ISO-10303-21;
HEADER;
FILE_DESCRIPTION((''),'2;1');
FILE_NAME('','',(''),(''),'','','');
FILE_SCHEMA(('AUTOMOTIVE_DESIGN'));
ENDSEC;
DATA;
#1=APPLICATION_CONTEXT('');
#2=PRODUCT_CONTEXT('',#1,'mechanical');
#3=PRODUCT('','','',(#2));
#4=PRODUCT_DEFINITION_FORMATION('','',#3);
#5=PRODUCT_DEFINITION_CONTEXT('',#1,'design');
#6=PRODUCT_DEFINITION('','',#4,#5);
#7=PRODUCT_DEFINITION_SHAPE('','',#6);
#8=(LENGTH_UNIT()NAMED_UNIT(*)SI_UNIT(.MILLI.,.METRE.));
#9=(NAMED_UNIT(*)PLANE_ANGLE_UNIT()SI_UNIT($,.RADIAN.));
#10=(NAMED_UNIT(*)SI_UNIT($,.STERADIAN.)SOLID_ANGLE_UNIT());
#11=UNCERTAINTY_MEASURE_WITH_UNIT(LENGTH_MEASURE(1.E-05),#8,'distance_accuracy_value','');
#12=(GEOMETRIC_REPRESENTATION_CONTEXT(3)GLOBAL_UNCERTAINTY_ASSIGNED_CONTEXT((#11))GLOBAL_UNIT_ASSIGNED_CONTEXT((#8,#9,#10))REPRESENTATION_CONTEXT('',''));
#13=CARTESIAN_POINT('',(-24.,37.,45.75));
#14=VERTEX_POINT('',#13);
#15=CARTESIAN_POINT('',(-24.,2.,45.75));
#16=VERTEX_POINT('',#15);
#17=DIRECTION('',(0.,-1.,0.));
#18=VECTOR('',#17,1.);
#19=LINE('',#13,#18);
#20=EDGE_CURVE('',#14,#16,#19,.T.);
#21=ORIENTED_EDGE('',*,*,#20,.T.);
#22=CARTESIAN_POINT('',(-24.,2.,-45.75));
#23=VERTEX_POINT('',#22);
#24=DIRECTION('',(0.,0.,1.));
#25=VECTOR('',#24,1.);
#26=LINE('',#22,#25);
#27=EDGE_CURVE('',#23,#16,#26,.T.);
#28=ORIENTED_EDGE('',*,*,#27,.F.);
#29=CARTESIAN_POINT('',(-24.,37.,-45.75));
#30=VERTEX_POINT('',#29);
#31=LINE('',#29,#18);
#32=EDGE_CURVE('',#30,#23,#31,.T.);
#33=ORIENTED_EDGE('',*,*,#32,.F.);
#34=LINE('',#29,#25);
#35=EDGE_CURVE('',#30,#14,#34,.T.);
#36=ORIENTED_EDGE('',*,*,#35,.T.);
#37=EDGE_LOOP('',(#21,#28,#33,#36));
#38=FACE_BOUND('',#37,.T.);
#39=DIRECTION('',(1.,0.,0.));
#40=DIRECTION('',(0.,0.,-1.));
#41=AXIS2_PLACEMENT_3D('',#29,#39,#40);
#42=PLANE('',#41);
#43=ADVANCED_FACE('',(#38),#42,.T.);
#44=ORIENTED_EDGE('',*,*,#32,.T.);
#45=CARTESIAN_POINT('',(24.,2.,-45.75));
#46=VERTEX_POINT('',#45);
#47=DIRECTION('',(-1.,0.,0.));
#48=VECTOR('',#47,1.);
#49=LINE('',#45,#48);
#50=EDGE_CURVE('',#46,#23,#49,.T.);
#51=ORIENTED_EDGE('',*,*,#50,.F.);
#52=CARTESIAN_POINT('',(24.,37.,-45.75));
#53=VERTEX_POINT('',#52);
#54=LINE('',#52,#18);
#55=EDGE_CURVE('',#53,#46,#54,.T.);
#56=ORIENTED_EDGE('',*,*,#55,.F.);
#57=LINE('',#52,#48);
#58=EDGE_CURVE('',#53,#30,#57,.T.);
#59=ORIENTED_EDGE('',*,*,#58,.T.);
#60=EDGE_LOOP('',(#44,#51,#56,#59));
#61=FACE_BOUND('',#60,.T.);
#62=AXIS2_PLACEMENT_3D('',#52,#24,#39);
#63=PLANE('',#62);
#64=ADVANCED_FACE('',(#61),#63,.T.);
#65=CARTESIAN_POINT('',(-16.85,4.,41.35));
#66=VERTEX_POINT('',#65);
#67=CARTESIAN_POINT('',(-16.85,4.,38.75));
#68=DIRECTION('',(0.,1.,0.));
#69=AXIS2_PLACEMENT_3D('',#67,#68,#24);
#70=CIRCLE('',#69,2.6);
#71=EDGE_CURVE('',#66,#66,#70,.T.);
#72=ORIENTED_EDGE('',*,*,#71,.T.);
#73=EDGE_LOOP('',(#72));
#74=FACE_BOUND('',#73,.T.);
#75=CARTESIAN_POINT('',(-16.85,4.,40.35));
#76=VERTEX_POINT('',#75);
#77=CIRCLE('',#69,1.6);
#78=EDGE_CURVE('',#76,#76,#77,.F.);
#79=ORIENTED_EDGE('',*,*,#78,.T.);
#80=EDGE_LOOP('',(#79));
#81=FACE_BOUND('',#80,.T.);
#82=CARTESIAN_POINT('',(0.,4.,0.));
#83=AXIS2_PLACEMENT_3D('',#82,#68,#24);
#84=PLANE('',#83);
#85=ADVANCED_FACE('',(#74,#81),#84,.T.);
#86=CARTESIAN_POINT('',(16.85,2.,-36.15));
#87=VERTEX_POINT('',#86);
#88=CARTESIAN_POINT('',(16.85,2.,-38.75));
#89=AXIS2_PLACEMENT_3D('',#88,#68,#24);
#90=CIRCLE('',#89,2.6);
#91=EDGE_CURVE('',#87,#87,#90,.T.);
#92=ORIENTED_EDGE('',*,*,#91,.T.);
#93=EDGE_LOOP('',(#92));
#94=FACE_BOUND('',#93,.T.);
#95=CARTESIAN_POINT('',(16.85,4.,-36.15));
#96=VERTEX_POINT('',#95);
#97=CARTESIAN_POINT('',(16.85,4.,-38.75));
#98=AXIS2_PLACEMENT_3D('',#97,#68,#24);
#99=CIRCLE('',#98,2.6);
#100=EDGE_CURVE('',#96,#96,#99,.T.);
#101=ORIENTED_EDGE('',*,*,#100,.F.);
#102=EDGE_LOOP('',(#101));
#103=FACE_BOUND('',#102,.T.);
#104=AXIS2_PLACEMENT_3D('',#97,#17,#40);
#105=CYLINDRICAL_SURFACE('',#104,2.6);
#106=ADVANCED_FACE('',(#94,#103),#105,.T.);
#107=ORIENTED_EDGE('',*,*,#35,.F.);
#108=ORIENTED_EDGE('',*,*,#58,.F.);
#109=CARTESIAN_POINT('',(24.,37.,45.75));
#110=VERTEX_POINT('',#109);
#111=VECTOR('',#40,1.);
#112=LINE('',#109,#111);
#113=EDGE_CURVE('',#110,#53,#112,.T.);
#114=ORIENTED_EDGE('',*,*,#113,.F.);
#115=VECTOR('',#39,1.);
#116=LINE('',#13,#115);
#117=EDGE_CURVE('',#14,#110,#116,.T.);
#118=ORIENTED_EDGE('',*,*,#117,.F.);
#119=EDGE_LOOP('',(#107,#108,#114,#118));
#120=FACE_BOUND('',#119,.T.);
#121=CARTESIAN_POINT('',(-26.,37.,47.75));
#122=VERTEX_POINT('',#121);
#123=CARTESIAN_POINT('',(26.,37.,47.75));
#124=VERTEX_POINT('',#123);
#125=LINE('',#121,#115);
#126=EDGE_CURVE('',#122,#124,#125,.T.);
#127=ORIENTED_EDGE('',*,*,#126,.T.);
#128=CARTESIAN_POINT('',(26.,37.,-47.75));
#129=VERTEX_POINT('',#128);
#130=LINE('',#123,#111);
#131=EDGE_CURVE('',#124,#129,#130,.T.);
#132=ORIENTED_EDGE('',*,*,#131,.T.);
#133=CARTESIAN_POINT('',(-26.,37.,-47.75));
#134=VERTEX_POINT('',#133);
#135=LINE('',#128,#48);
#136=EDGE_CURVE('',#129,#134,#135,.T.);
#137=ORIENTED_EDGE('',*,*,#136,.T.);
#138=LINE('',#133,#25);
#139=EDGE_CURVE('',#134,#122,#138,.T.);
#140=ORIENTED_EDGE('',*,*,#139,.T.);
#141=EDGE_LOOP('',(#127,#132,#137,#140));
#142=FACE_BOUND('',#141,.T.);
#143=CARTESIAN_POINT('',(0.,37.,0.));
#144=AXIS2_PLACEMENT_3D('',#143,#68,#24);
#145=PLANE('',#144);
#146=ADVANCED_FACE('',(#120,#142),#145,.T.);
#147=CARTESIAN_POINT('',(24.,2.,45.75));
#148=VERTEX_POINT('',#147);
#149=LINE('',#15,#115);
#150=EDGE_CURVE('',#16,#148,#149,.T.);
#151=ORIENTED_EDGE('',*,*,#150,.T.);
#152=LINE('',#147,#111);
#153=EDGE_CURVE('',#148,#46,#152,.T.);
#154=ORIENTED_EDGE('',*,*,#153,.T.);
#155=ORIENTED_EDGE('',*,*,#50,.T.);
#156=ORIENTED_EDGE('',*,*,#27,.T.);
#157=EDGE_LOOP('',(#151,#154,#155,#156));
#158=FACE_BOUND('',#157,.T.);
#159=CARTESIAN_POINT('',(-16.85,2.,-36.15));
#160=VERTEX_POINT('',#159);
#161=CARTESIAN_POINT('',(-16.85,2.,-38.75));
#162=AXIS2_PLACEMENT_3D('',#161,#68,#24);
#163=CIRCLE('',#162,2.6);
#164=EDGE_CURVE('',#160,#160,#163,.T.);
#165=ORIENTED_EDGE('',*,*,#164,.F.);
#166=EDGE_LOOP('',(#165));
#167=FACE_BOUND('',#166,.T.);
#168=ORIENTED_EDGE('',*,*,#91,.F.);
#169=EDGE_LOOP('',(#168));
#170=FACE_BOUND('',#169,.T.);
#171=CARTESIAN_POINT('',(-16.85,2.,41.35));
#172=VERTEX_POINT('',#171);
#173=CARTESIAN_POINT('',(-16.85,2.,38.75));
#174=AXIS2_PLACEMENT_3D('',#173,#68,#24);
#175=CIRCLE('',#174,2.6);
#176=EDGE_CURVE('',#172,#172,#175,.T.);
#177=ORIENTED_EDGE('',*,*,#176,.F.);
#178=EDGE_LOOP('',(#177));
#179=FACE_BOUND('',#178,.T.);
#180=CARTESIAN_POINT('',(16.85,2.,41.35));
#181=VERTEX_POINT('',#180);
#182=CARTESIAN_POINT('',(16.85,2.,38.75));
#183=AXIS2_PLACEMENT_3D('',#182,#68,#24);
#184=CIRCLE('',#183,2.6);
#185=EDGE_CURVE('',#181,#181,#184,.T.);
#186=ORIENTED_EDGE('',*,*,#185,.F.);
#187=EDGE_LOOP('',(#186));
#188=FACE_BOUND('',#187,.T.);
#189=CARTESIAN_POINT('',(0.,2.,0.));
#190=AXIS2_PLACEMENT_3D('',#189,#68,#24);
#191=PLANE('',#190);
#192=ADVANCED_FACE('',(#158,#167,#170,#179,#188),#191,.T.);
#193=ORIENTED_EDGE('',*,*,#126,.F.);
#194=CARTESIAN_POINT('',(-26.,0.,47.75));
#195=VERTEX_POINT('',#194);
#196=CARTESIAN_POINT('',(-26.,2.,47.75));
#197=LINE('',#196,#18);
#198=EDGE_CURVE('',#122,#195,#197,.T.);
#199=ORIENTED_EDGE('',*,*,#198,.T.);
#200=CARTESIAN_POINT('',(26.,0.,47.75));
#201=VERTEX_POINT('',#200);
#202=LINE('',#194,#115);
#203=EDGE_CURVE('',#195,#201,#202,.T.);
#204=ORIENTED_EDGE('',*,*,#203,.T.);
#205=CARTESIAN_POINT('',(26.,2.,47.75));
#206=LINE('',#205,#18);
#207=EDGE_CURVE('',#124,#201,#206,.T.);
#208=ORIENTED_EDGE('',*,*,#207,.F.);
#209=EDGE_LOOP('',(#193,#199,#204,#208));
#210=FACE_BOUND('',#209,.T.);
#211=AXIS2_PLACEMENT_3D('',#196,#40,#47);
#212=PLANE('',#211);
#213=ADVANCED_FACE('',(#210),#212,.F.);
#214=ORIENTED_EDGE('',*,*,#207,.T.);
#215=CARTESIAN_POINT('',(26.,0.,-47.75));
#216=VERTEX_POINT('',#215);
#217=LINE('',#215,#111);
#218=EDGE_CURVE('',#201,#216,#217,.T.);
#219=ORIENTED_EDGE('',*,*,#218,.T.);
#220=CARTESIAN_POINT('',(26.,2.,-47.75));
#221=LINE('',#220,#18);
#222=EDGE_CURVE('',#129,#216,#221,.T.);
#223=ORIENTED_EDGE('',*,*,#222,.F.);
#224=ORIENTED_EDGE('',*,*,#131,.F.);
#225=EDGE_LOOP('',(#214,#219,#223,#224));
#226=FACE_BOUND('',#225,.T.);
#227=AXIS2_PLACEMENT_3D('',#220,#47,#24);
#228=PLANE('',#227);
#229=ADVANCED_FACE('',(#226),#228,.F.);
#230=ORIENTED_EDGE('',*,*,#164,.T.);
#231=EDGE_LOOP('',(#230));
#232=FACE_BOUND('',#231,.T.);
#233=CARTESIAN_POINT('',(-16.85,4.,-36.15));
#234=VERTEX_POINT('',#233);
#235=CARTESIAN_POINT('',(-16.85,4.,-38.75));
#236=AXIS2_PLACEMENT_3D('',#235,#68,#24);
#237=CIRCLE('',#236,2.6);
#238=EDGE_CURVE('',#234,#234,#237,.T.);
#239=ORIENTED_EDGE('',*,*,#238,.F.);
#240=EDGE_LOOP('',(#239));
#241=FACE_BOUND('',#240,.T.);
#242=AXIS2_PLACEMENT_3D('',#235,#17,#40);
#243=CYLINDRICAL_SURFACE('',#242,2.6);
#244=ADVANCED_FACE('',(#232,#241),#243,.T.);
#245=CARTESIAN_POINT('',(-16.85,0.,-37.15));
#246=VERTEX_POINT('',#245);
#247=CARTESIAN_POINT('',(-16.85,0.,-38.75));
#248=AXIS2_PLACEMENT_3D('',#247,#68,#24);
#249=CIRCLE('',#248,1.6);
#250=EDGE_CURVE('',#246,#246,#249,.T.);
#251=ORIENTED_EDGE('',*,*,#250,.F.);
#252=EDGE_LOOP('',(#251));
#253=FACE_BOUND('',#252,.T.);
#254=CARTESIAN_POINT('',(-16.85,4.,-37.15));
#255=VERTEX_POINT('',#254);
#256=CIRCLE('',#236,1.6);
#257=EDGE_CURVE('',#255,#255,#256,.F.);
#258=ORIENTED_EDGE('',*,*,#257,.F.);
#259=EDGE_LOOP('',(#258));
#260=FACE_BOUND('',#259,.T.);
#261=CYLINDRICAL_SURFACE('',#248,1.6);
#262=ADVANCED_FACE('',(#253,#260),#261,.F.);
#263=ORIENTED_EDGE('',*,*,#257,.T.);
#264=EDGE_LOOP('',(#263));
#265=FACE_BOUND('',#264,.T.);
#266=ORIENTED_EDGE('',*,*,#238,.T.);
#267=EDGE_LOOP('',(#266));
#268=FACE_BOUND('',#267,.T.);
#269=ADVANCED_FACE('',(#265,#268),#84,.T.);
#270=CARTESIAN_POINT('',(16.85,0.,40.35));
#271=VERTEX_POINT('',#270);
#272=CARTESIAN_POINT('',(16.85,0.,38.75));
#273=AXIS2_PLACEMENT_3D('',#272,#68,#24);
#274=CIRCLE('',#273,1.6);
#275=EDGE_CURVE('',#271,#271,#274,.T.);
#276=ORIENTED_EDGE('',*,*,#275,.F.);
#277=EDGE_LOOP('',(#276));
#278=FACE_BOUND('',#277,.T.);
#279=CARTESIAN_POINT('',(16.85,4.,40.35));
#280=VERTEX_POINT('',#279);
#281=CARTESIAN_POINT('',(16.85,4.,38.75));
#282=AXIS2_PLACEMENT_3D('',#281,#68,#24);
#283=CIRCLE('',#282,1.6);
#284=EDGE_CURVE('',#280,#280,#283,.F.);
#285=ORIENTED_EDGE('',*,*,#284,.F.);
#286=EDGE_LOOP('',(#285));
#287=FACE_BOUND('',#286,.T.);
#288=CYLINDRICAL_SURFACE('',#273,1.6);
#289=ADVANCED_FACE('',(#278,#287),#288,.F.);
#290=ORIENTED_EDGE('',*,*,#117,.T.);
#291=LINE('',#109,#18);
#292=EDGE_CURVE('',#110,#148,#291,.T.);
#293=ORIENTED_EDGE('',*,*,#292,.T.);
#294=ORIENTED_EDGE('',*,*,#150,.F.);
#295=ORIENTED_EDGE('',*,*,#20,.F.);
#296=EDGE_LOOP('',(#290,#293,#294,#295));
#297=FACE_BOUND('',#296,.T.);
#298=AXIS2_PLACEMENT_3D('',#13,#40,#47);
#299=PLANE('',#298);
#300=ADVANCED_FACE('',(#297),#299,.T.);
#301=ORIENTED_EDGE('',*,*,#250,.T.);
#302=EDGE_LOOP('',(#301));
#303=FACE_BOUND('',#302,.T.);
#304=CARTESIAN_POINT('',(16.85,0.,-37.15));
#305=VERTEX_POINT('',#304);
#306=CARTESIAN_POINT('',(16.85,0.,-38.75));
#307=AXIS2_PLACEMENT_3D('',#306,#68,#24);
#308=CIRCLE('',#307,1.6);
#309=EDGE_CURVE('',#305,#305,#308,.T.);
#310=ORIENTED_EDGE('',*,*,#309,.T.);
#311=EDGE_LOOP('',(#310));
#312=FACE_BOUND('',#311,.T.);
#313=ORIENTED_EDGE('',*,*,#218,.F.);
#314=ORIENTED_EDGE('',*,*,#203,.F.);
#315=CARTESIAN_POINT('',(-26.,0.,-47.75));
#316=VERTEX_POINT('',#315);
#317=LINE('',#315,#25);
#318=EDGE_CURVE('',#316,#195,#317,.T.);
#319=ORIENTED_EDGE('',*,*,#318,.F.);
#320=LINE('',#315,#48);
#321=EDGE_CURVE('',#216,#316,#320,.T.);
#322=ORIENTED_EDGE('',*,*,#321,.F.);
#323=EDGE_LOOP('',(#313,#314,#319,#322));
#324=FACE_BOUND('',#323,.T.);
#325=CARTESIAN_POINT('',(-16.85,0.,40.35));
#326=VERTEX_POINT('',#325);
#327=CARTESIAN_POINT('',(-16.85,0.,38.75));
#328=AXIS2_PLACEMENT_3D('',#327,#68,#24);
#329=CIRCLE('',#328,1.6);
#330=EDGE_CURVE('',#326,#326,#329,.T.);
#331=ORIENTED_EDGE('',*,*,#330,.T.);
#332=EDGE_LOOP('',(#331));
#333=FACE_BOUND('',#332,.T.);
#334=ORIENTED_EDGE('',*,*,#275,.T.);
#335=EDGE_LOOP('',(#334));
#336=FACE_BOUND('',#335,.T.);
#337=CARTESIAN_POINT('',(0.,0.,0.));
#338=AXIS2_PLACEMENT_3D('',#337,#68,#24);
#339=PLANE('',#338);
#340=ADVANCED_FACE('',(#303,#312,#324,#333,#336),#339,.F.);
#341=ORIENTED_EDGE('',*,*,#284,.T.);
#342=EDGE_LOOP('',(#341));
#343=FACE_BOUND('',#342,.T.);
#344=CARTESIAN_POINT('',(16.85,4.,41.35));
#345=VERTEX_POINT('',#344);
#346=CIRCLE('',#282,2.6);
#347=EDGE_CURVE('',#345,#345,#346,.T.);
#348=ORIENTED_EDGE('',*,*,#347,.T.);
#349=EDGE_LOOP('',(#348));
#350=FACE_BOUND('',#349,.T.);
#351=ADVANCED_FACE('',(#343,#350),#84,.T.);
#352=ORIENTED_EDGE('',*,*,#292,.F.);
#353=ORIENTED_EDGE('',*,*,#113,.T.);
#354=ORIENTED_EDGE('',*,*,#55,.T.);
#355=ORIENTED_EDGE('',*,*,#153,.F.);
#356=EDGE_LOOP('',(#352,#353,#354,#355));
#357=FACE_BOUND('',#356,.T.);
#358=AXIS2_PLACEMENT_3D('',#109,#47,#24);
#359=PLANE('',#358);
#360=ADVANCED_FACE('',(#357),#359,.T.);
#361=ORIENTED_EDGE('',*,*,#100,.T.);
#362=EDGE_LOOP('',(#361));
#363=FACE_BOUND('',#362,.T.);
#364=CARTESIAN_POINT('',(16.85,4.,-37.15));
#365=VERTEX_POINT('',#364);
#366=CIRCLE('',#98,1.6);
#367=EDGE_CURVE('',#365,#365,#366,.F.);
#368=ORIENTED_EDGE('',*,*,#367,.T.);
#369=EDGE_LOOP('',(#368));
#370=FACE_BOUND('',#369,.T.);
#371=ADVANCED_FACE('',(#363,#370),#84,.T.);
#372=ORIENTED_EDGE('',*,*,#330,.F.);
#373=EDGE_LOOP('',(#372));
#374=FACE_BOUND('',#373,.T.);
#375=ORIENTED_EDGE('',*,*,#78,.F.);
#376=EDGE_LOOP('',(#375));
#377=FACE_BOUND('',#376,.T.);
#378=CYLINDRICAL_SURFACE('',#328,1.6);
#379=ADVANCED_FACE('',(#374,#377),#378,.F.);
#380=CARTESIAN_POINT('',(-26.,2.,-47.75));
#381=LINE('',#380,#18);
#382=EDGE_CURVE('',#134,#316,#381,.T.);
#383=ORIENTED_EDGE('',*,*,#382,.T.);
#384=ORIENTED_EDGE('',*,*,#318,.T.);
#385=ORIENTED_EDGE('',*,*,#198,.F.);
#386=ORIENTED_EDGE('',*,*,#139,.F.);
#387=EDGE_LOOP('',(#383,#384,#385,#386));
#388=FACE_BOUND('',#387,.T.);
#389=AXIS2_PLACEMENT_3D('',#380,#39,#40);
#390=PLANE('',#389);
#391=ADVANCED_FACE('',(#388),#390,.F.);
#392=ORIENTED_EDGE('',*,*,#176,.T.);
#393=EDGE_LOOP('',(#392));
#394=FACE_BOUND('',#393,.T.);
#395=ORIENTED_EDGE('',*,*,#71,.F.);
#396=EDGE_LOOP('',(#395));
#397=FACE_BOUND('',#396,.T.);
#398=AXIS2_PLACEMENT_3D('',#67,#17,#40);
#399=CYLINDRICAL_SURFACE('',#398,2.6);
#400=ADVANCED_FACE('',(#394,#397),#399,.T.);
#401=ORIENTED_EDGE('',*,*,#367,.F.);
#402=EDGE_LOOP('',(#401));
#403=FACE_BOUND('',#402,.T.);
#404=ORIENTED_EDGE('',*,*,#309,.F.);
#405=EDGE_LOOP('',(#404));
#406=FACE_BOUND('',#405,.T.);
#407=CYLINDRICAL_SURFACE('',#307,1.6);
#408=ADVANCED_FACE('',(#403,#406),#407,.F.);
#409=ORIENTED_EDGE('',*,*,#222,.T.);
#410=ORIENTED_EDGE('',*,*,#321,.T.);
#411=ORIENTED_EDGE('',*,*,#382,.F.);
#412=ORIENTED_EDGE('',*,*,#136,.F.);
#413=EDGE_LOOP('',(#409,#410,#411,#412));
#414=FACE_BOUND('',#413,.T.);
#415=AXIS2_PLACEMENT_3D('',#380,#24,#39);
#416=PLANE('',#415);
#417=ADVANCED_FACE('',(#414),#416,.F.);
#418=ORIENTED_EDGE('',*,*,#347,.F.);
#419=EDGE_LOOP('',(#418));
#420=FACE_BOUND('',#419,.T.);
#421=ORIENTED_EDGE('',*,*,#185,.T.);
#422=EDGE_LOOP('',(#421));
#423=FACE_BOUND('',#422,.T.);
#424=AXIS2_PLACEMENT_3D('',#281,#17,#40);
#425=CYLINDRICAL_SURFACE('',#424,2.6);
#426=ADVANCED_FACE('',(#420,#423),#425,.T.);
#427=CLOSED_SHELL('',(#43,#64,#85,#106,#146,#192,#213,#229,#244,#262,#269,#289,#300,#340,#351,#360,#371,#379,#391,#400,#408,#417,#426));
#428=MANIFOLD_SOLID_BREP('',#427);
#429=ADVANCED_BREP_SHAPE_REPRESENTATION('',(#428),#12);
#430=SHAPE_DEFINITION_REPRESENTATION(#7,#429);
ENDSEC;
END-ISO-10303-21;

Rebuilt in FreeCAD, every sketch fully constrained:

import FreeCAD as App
import Part
import Sketcher

V = App.Vector
Q = App.Units.Quantity


def add_polygon(sketch, points):
    """Adds a closed chain of lines whose ends are joined by coincident constraints."""
    first, n = sketch.GeometryCount, len(points)
    for a, b in zip(points, points[1:] + points[:1]):
        sketch.addGeometry(Part.LineSegment(App.Vector(*a, 0), App.Vector(*b, 0)), False)
    for i in range(n):
        sketch.addConstraint(Sketcher.Constraint("Coincident", first + i, 2, first + (i + 1) % n, 1))

doc = App.newDocument("Part")
body = doc.addObject("PartDesign::Body", "Body")

# Sketch on XZ plane
sketch1 = body.newObject("Sketcher::SketchObject", "Sketch")
sketch1.AttachmentSupport = (doc.getObject("XZ_Plane"), [""])
sketch1.MapMode = "FlatFace"
add_polygon(sketch1, [(-26, -48), (-26, 48), (26, 48), (26, -48)])  # lines 0-3
sketch1.addConstraint([
    Sketcher.Constraint("Vertical", 0),
    Sketcher.Constraint("Horizontal", 1),
    Sketcher.Constraint("Vertical", 2),
    Sketcher.Constraint("Horizontal", 3),
    Sketcher.Constraint("Symmetric", 0, 2, 2, 2, -1, 1),
    Sketcher.Constraint("DistanceX", 1, 1, 1, 2, Q("52 mm")),
    Sketcher.Constraint("DistanceY", 0, 1, 0, 2, Q("95.5 mm")),
])
pad1 = body.newObject("PartDesign::Pad", "Pad")
pad1.Profile = sketch1
pad1.Length = 2
pad1.Reversed = True

# Sketch on XZ plane
sketch2 = body.newObject("Sketcher::SketchObject", "Sketch001")
sketch2.AttachmentSupport = (doc.getObject("XZ_Plane"), [""])
sketch2.MapMode = "FlatFace"
sketch2.AttachmentOffset = App.Placement(V(0, 0, -2), App.Rotation())
sketch2.addGeometry([
    Part.Circle(V(-16.9, -38.8, 0), V(0, 0, 1), 1.6),
    Part.Circle(V(16.9, -38.8, 0), V(0, 0, 1), 1.6),
    Part.Circle(V(-16.9, 38.8, 0), V(0, 0, 1), 1.6),
    Part.Circle(V(16.9, 38.8, 0), V(0, 0, 1), 1.6),
], False)
sketch2.addConstraint([
    Sketcher.Constraint("Equal", 0, 1),
    Sketcher.Constraint("Equal", 1, 2),
    Sketcher.Constraint("Equal", 2, 3),
    Sketcher.Constraint("Symmetric", 1, 3, 2, 3, -1, 1),
    Sketcher.Constraint("Symmetric", 0, 3, 3, 3, -1, 1),
    Sketcher.Constraint("Symmetric", 0, 3, 1, 3, -2),
    Sketcher.Constraint("Diameter", 0, Q("3.2 mm")),
    Sketcher.Constraint("DistanceX", 0, 3, 1, 3, Q("33.7 mm")),
    Sketcher.Constraint("DistanceY", 0, 3, 2, 3, Q("77.5 mm")),
])
pocket1 = body.newObject("PartDesign::Pocket", "Pocket")
pocket1.Profile = sketch2
pocket1.Length = 2
pocket1.Reversed = True

# Sketch on XZ plane
sketch3 = body.newObject("Sketcher::SketchObject", "Sketch002")
sketch3.AttachmentSupport = (doc.getObject("XZ_Plane"), [""])
sketch3.MapMode = "FlatFace"
sketch3.AttachmentOffset = App.Placement(V(0, 0, -2), App.Rotation())
add_polygon(sketch3, [(-26, -48), (-26, 48), (26, 48), (26, -48)])  # lines 0-3
add_polygon(sketch3, [(24, 46), (-24, 46), (-24, -46), (24, -46)])  # lines 4-7
sketch3.addConstraint([
    Sketcher.Constraint("Vertical", 0),
    Sketcher.Constraint("Horizontal", 1),
    Sketcher.Constraint("Vertical", 2),
    Sketcher.Constraint("Horizontal", 3),
    Sketcher.Constraint("Horizontal", 4),
    Sketcher.Constraint("Vertical", 5),
    Sketcher.Constraint("Horizontal", 6),
    Sketcher.Constraint("Vertical", 7),
    Sketcher.Constraint("Symmetric", 0, 2, 2, 2, -1, 1),
    Sketcher.Constraint("Symmetric", 4, 2, 6, 2, -1, 1),
    Sketcher.Constraint("DistanceX", 1, 1, 1, 2, Q("52 mm")),
    Sketcher.Constraint("DistanceX", 4, 2, 4, 1, Q("48 mm")),
    Sketcher.Constraint("DistanceY", 0, 1, 0, 2, Q("95.5 mm")),
    Sketcher.Constraint("DistanceY", 5, 2, 5, 1, Q("91.5 mm")),
])
pad2 = body.newObject("PartDesign::Pad", "Pad001")
pad2.Profile = sketch3
pad2.Length = 35
pad2.Reversed = True

# Sketch on XZ plane
sketch4 = body.newObject("Sketcher::SketchObject", "Sketch003")
sketch4.AttachmentSupport = (doc.getObject("XZ_Plane"), [""])
sketch4.MapMode = "FlatFace"
sketch4.AttachmentOffset = App.Placement(V(0, 0, -2), App.Rotation())
sketch4.addGeometry([
    Part.Circle(V(-16.9, -38.8, 0), V(0, 0, 1), 2.6),  # 0
    Part.Circle(V(-16.9, -38.8, 0), V(0, 0, 1), 1.6),  # 1
    Part.Circle(V(16.9, -38.8, 0), V(0, 0, 1), 2.6),  # 2
    Part.Circle(V(16.9, -38.8, 0), V(0, 0, 1), 1.6),  # 3
    Part.Circle(V(16.9, 38.8, 0), V(0, 0, 1), 2.6),  # 4
    Part.Circle(V(16.9, 38.8, 0), V(0, 0, 1), 1.6),  # 5
    Part.Circle(V(-16.9, 38.8, 0), V(0, 0, 1), 2.6),  # 6
    Part.Circle(V(-16.9, 38.8, 0), V(0, 0, 1), 1.6),  # 7
], False)
sketch4.addConstraint([
    Sketcher.Constraint("Coincident", 1, 3, 0, 3),
    Sketcher.Constraint("Coincident", 3, 3, 2, 3),
    Sketcher.Constraint("Coincident", 5, 3, 4, 3),
    Sketcher.Constraint("Coincident", 7, 3, 6, 3),
    Sketcher.Constraint("Equal", 0, 2),
    Sketcher.Constraint("Equal", 1, 3),
    Sketcher.Constraint("Equal", 2, 4),
    Sketcher.Constraint("Equal", 3, 5),
    Sketcher.Constraint("Equal", 4, 6),
    Sketcher.Constraint("Equal", 5, 7),
    Sketcher.Constraint("Symmetric", 0, 3, 4, 3, -1, 1),
    Sketcher.Constraint("Symmetric", 2, 3, 6, 3, -1, 1),
    Sketcher.Constraint("Symmetric", 0, 3, 2, 3, -2),
    Sketcher.Constraint("Diameter", 0, Q("5.2 mm")),
    Sketcher.Constraint("Diameter", 1, Q("3.2 mm")),
    Sketcher.Constraint("DistanceX", 0, 3, 2, 3, Q("33.7 mm")),
    Sketcher.Constraint("DistanceY", 2, 3, 4, 3, Q("77.5 mm")),
])
pad3 = body.newObject("PartDesign::Pad", "Pad002")
pad3.Profile = sketch4
pad3.Length = 2
pad3.Reversed = True

doc.recompute()
